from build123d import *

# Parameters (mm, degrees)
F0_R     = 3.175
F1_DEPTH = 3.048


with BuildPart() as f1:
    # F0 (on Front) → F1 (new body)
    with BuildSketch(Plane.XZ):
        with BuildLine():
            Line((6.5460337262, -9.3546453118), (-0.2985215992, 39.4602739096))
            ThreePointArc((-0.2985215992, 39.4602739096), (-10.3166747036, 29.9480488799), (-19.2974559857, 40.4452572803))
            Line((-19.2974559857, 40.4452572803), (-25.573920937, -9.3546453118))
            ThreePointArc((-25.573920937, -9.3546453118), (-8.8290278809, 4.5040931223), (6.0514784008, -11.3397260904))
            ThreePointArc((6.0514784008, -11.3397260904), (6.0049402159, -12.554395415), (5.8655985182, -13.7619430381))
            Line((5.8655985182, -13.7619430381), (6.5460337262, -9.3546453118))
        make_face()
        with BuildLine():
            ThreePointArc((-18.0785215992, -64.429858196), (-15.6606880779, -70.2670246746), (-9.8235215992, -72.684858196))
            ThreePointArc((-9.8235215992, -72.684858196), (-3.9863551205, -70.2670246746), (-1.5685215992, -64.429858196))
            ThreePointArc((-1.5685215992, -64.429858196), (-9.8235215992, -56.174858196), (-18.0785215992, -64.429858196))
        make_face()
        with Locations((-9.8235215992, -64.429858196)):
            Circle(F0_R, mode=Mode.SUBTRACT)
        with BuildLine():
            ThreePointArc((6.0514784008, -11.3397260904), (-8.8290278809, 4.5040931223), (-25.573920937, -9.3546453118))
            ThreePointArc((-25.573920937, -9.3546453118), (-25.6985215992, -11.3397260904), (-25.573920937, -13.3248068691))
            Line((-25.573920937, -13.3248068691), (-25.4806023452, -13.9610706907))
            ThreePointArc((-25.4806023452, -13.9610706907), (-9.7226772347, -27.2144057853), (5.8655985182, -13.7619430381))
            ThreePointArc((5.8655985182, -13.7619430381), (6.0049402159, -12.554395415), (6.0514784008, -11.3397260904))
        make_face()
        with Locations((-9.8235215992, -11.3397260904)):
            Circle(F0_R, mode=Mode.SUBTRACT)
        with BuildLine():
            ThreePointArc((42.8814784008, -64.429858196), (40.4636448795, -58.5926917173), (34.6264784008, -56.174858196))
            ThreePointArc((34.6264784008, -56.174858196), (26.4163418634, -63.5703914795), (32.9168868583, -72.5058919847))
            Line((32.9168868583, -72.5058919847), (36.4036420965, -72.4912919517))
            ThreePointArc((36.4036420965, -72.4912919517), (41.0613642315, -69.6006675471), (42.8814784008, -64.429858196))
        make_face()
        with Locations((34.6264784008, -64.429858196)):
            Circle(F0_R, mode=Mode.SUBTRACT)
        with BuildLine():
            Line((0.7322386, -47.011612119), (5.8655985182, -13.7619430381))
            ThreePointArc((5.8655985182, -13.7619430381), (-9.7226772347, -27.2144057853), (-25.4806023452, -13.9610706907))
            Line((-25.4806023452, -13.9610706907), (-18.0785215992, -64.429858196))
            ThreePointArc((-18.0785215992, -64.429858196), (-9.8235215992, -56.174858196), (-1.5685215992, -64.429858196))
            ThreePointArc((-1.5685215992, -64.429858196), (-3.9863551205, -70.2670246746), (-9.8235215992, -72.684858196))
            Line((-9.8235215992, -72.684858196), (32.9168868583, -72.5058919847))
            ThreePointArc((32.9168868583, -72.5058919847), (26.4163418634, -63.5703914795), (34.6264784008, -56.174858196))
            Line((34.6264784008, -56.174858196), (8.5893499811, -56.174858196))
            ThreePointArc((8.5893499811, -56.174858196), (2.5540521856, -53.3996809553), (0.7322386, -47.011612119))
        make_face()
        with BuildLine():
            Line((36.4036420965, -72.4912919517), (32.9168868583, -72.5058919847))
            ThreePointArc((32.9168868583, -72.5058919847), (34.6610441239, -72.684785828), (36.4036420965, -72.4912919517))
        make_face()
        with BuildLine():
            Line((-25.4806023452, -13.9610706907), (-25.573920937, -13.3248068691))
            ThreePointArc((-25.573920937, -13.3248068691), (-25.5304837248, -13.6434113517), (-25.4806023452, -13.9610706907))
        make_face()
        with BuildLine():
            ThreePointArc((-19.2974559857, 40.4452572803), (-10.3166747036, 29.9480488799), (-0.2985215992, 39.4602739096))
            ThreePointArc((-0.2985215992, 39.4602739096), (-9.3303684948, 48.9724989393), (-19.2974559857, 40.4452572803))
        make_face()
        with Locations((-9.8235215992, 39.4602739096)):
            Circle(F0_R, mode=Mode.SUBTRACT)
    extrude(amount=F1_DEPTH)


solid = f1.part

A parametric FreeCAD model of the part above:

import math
import FreeCAD as App
import Part
import Sketcher

V = App.Vector
Q = App.Units.Quantity

doc = App.newDocument("Part")
body = doc.addObject("PartDesign::Body", "Body")

sketch1 = body.newObject("Sketcher::SketchObject", "Sketch")
sketch1.AttachmentSupport = (doc.getObject("XZ_Plane"), [""])
sketch1.MapMode = "FlatFace"
sketch1.addGeometry(Part.LineSegment(V(6.546034, -9.354645, 0), V(-0.298522, 39.460274, 0)), False)
sketch1.addGeometry(Part.ArcOfCircle(Part.Circle(V(-9.823522, 39.460274, 0), V(0, 0, 1), 9.525), math.radians(0), math.radians(174.064414)), False)
sketch1.addGeometry(Part.LineSegment(V(-19.297456, 40.445257, 0), V(-25.573921, -9.354645, 0)), False)
sketch1.addGeometry(Part.ArcOfCircle(Part.Circle(V(-9.823522, -11.339726, 0), V(0, 0, 1), 15.875), math.radians(172.816677), math.radians(187.183323)), False)
sketch1.addGeometry(Part.ArcOfCircle(Part.Circle(V(-9.823521, -11.339726, 0), V(0, 0, 1), 15.875), math.radians(-172.816677), math.radians(-170.495558)), False)
sketch1.addGeometry(Part.LineSegment(V(-25.480602, -13.961071, 0), V(-18.078522, -64.429858, 0)), False)
sketch1.addGeometry(Part.ArcOfCircle(Part.Circle(V(-9.823522, -64.429858, 0), V(0, 0, 1), 8.255), math.radians(180), math.radians(270)), False)
sketch1.addGeometry(Part.ArcOfCircle(Part.Circle(V(-9.823522, -64.429858, 0), V(0, 0, 1), 8.255), math.radians(-90), math.radians(-89.520175)), False)
sketch1.addGeometry(Part.LineSegment(V(-9.754391, -72.684569, 0), V(32.916887, -72.505892, 0)), False)
sketch1.addGeometry(Part.ArcOfCircle(Part.Circle(V(34.626478, -64.429858, 0), V(0, 0, 1), 8.255), math.radians(-101.952324), math.radians(-77.567851)), False)
sketch1.addGeometry(Part.ArcOfCircle(Part.Circle(V(34.626478, -64.429858, 0), V(0, 0, 1), 8.255), math.radians(-77.567851), math.radians(90)), False)
sketch1.addGeometry(Part.LineSegment(V(34.626478, -56.174858, 0), V(8.58935, -56.174858, 0)), False)
sketch1.addGeometry(Part.ArcOfCircle(Part.Circle(V(8.58935, -48.224658, 0), V(0, 0, 1), 7.9502), math.radians(171.223496), math.radians(270)), False)
sketch1.addGeometry(Part.LineSegment(V(0.732239, -47.011612, 0), V(5.865599, -13.761943, 0)), False)
sketch1.addGeometry(Part.LineSegment(V(5.865599, -13.761943, 0), V(6.546034, -9.354645, 0)), False)
sketch1.addGeometry(Part.Circle(V(-9.823522, -64.429858, 0), V(0, 0, 1), 3.175), False)
sketch1.addGeometry(Part.Circle(V(34.626478, -64.429858, 0), V(0, 0, 1), 3.175), False)
sketch1.addGeometry(Part.Circle(V(-9.823522, -11.339726, 0), V(0, 0, 1), 3.175), False)
sketch1.addGeometry(Part.Circle(V(-9.823522, 39.460274, 0), V(0, 0, 1), 3.175), False)
sketch1.addConstraint(Sketcher.Constraint("Coincident", 0, 2, 1, 1))
sketch1.addConstraint(Sketcher.Constraint("Coincident", 1, 2, 2, 1))
sketch1.addConstraint(Sketcher.Constraint("Coincident", 2, 2, 3, 1))
sketch1.addConstraint(Sketcher.Constraint("Coincident", 3, 2, 4, 1))
sketch1.addConstraint(Sketcher.Constraint("Coincident", 4, 2, 5, 1))
sketch1.addConstraint(Sketcher.Constraint("Coincident", 5, 2, 6, 1))
sketch1.addConstraint(Sketcher.Constraint("Coincident", 6, 2, 7, 1))
sketch1.addConstraint(Sketcher.Constraint("Coincident", 7, 2, 8, 1))
sketch1.addConstraint(Sketcher.Constraint("Coincident", 8, 2, 9, 1))
sketch1.addConstraint(Sketcher.Constraint("Coincident", 9, 2, 10, 1))
sketch1.addConstraint(Sketcher.Constraint("Coincident", 10, 2, 11, 1))
sketch1.addConstraint(Sketcher.Constraint("Coincident", 11, 2, 12, 2))
sketch1.addConstraint(Sketcher.Constraint("Coincident", 12, 1, 13, 1))
sketch1.addConstraint(Sketcher.Constraint("Coincident", 13, 2, 14, 1))
sketch1.addConstraint(Sketcher.Constraint("Coincident", 14, 2, 0, 1))
sketch1.addConstraint(Sketcher.Constraint("Horizontal", 11))
sketch1.addConstraint(Sketcher.Constraint("Coincident", 4, 3, 3, 3))
sketch1.addConstraint(Sketcher.Constraint("Coincident", 7, 3, 6, 3))
sketch1.addConstraint(Sketcher.Constraint("Coincident", 10, 3, 9, 3))
sketch1.addConstraint(Sketcher.Constraint("Coincident", 15, 3, 6, 3))
sketch1.addConstraint(Sketcher.Constraint("Coincident", 16, 3, 9, 3))
sketch1.addConstraint(Sketcher.Constraint("Coincident", 17, 3, 3, 3))
sketch1.addConstraint(Sketcher.Constraint("Coincident", 18, 3, 1, 3))
sketch1.addConstraint(Sketcher.Constraint("Diameter", 15, Q("0.25 in")))
sketch1.addConstraint(Sketcher.Constraint("Diameter", 16, Q("0.25 in")))
sketch1.addConstraint(Sketcher.Constraint("Diameter", 17, Q("0.25 in")))
sketch1.addConstraint(Sketcher.Constraint("Diameter", 18, Q("0.25 in")))
sketch1.addConstraint(Sketcher.Constraint("Radius", 1, Q("0.375 in")))
sketch1.addConstraint(Sketcher.Constraint("Radius", 3, Q("0.625 in")))
sketch1.addConstraint(Sketcher.Constraint("Radius", 6, Q("0.325 in")))
sketch1.addConstraint(Sketcher.Constraint("Radius", 9, Q("0.325 in")))
sketch1.addConstraint(Sketcher.Constraint("Radius", 12, Q("0.313 in")))
sketch1.addConstraint(Sketcher.Constraint("DistanceY", 3, 3, 1, 3, Q("2 in")))
sketch1.addConstraint(Sketcher.Constraint("DistanceY", 4, 3, 0, 2, Q("2 in")))
sketch1.addConstraint(Sketcher.Constraint("DistanceX", 6, 3, 9, 3, Q("1.75 in")))
sketch1.addConstraint(Sketcher.Constraint("DistanceX", 4, 3, 9, 3, Q("1.75 in")))
sketch1.addConstraint(Sketcher.Constraint("DistanceX", 1, 3, 9, 3, Q("1.75 in")))
sketch1.addConstraint(Sketcher.Constraint("DistanceY", 6, 3, 12, 3, Q("0.638 in")))
sketch1.addConstraint(Sketcher.Constraint("DistanceY", 5, 2, 12, 3, Q("0.638 in")))
sketch1.addConstraint(Sketcher.Constraint("DistanceX", 5, 2, 6, 2, Q("0.325 in")))
sketch1.addConstraint(Sketcher.Constraint("Distance", 13, 33.643601))
sketch1.addConstraint(Sketcher.Constraint("DistanceX", 11, 2, 11, 1, 26.037128))
sketch1.addConstraint(Sketcher.Constraint("DistanceX", -1, 1, 13, 2, 5.865599))
sketch1.addConstraint(Sketcher.Constraint("DistanceX", 2, 2, 3, 3, 15.750399))
sketch1.addConstraint(Sketcher.Constraint("DistanceX", 3, 2, 3, 3, 15.750399))
sketch1.addConstraint(Sketcher.Constraint("DistanceY", 8, 2, 9, 2, 0.0146))
sketch1.addConstraint(Sketcher.Constraint("DistanceX", 4, 2, 13, 2, 31.346201))
sketch1.addConstraint(Sketcher.Constraint("Distance", 8, 42.671652))
sketch1.addConstraint(Sketcher.Constraint("DistanceX", 1, 3, -1, 1, 9.823522))
sketch1.addConstraint(Sketcher.Constraint("DistanceY", 6, 3, -1, 1, 64.429858))
sketch1.addConstraint(Sketcher.Constraint("DistanceX", -1, 1, 12, 3, 8.58935))
sketch1.addConstraint(Sketcher.Constraint("DistanceY", 4, 2, -1, 1, 13.961071))
sketch1.addConstraint(Sketcher.Constraint("DistanceX", 7, 2, -1, 1, 9.754391))
sketch1.addConstraint(Sketcher.Constraint("DistanceX", -1, 1, 10, 2, 34.626478))
sketch1.addConstraint(Sketcher.Constraint("DistanceX", -1, 1, 12, 1, 0.732239))
sketch1.addConstraint(Sketcher.Constraint("DistanceY", 4, 3, 14, 2, 1.985081))
sketch1.addConstraint(Sketcher.Constraint("Distance", 0, 49.292436))
sketch1.addConstraint(Sketcher.Constraint("Distance", 2, 50.193867))
pad1 = body.newObject("PartDesign::Pad", "Pad")
pad1.Profile = sketch1
pad1.Length = Q("0.12 in")

doc.recompute()
